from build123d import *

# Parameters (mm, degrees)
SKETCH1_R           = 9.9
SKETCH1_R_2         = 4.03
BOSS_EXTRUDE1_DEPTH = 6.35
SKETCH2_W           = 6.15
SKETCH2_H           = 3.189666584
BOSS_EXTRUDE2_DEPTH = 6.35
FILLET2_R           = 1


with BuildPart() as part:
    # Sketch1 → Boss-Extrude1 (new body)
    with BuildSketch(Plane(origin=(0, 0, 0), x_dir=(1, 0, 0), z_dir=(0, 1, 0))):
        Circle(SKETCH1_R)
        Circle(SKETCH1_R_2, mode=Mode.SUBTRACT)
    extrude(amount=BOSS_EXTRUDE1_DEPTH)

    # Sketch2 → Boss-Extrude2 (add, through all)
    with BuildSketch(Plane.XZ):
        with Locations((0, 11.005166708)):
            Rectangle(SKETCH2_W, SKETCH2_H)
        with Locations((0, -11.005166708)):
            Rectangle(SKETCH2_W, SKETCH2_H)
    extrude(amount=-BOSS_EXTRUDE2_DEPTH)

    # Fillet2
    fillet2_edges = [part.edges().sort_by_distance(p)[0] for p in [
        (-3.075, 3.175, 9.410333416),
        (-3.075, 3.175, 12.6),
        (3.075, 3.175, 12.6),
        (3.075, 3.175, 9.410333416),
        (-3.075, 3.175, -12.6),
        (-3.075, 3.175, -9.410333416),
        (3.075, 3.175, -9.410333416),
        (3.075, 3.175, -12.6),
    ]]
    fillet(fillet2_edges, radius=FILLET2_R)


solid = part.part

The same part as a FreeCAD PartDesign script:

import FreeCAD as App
import Part
import Sketcher

V = App.Vector
Q = App.Units.Quantity


def edges_at(feature, points):
    """Names of the edges that pass closest to the given points."""
    edges = feature.Shape.Edges
    near = lambda p: min(range(len(edges)), key=lambda i: edges[i].distToShape(Part.Vertex(*p))[0])
    return sorted({f"Edge{near(p) + 1}" for p in points})

doc = App.newDocument("Part")
params = doc.addObject("Spreadsheet::Sheet", "Params")
for row, (alias, value) in enumerate([
    ("sketch1_diameter", "19.8 mm"),
    ("sketch1_diameter2", "8.06 mm"),
    ("pad1_length", "6.35 mm"),
    ("sketch2_width", "6.15 mm"),
    ("pad2_length", "6.35 mm"),
    ("fillet_radius", "1 mm"),
], start=1):
    params.set(f"A{row}", alias)
    params.set(f"B{row}", "=" + value)
    params.setAlias(f"B{row}", alias)

body = doc.addObject("PartDesign::Body", "Body")

sketch1 = doc.addObject("Sketcher::SketchObject", "Sketch")
body.addObject(sketch1)
sketch1.AttachmentSupport = (doc.XZ_Plane, [""])
sketch1.MapMode = "FlatFace"
sketch1.addGeometry(Part.Circle(V(0, 0, 0), V(0, 0, 1), 9.9), False)
sketch1.addGeometry(Part.Circle(V(0, 0, 0), V(0, 0, 1), 4), False)
sketch1.addConstraint(Sketcher.Constraint("Coincident", 0, 3, -1, 1))
sketch1.addConstraint(Sketcher.Constraint("Coincident", 1, 3, -1, 1))
sketch1.addConstraint(Sketcher.Constraint("Diameter", 0, Q("19.8 mm")))
sketch1.addConstraint(Sketcher.Constraint("Diameter", 1, Q("8.06 mm")))
sketch1.setExpression("Constraints[2]", "Params.sketch1_diameter")
sketch1.setExpression("Constraints[3]", "Params.sketch1_diameter2")
pad1 = doc.addObject("PartDesign::Pad", "Pad")
body.addObject(pad1)
pad1.Profile = sketch1
pad1.setExpression("Length", "Params.pad1_length")
pad1.Reversed = True

sketch2 = doc.addObject("Sketcher::SketchObject", "Sketch001")
body.addObject(sketch2)
sketch2.AttachmentSupport = (doc.XZ_Plane, [""])
sketch2.MapMode = "FlatFace"
sketch2.addGeometry(Part.LineSegment(V(-3.1, 12.6, 0), V(-3.1, 9.4, 0)), False)
sketch2.addGeometry(Part.LineSegment(V(-3.1, 9.4, 0), V(3.1, 9.4, 0)), False)
sketch2.addGeometry(Part.LineSegment(V(3.1, 9.4, 0), V(3.1, 12.6, 0)), False)
sketch2.addGeometry(Part.LineSegment(V(3.1, 12.6, 0), V(-3.1, 12.6, 0)), False)
sketch2.addGeometry(Part.LineSegment(V(-3.1, -9.4, 0), V(-3.1, -12.6, 0)), False)
sketch2.addGeometry(Part.LineSegment(V(-3.1, -12.6, 0), V(3.1, -12.6, 0)), False)
sketch2.addGeometry(Part.LineSegment(V(3.1, -12.6, 0), V(3.1, -9.4, 0)), False)
sketch2.addGeometry(Part.LineSegment(V(3.1, -9.4, 0), V(-3.1, -9.4, 0)), False)
sketch2.addConstraint(Sketcher.Constraint("Coincident", 0, 2, 1, 1))
sketch2.addConstraint(Sketcher.Constraint("Coincident", 1, 2, 2, 1))
sketch2.addConstraint(Sketcher.Constraint("Coincident", 2, 2, 3, 1))
sketch2.addConstraint(Sketcher.Constraint("Coincident", 3, 2, 0, 1))
sketch2.addConstraint(Sketcher.Constraint("Coincident", 4, 2, 5, 1))
sketch2.addConstraint(Sketcher.Constraint("Coincident", 5, 2, 6, 1))
sketch2.addConstraint(Sketcher.Constraint("Coincident", 6, 2, 7, 1))
sketch2.addConstraint(Sketcher.Constraint("Coincident", 7, 2, 4, 1))
sketch2.addConstraint(Sketcher.Constraint("Vertical", 0))
sketch2.addConstraint(Sketcher.Constraint("Horizontal", 1))
sketch2.addConstraint(Sketcher.Constraint("Vertical", 2))
sketch2.addConstraint(Sketcher.Constraint("Horizontal", 3))
sketch2.addConstraint(Sketcher.Constraint("Vertical", 4))
sketch2.addConstraint(Sketcher.Constraint("Horizontal", 5))
sketch2.addConstraint(Sketcher.Constraint("Vertical", 6))
sketch2.addConstraint(Sketcher.Constraint("Horizontal", 7))
sketch2.addConstraint(Sketcher.Constraint("Symmetric", 2, 2, 4, 2, -1, 1))
sketch2.addConstraint(Sketcher.Constraint("Symmetric", 0, 2, 6, 2, -1, 1))
sketch2.addConstraint(Sketcher.Constraint("Vertical", 3, 2, 4, 2))
sketch2.addConstraint(Sketcher.Constraint("DistanceX", 1, 1, 1, 2, Q("6.15 mm")))
sketch2.addConstraint(Sketcher.Constraint("DistanceY", -1, 1, 2, 2, Q("12.6 mm")))
sketch2.addConstraint(Sketcher.Constraint("DistanceY", 0, 2, 0, 1, Q("3.189667 mm")))
sketch2.setExpression("Constraints[19]", "Params.sketch2_width")
pad2 = doc.addObject("PartDesign::Pad", "Pad001")
body.addObject(pad2)
pad2.Profile = sketch2
pad2.setExpression("Length", "Params.pad2_length")
pad2.Reversed = True
doc.recompute()

fillet = doc.addObject("PartDesign::Fillet", "Fillet")
body.addObject(fillet)
fillet.Base = (pad2, edges_at(pad2, [
    (-3.075, 3.175, 9.41),
    (-3.075, 3.175, 12.6),
    (3.075, 3.175, 12.6),
    (3.075, 3.175, 9.41),
    (-3.075, 3.175, -12.6),
    (-3.075, 3.175, -9.41),
    (3.075, 3.175, -9.41),
    (3.075, 3.175, -12.6),
]))
fillet.setExpression("Radius", "Params.fillet_radius")

doc.recompute()
